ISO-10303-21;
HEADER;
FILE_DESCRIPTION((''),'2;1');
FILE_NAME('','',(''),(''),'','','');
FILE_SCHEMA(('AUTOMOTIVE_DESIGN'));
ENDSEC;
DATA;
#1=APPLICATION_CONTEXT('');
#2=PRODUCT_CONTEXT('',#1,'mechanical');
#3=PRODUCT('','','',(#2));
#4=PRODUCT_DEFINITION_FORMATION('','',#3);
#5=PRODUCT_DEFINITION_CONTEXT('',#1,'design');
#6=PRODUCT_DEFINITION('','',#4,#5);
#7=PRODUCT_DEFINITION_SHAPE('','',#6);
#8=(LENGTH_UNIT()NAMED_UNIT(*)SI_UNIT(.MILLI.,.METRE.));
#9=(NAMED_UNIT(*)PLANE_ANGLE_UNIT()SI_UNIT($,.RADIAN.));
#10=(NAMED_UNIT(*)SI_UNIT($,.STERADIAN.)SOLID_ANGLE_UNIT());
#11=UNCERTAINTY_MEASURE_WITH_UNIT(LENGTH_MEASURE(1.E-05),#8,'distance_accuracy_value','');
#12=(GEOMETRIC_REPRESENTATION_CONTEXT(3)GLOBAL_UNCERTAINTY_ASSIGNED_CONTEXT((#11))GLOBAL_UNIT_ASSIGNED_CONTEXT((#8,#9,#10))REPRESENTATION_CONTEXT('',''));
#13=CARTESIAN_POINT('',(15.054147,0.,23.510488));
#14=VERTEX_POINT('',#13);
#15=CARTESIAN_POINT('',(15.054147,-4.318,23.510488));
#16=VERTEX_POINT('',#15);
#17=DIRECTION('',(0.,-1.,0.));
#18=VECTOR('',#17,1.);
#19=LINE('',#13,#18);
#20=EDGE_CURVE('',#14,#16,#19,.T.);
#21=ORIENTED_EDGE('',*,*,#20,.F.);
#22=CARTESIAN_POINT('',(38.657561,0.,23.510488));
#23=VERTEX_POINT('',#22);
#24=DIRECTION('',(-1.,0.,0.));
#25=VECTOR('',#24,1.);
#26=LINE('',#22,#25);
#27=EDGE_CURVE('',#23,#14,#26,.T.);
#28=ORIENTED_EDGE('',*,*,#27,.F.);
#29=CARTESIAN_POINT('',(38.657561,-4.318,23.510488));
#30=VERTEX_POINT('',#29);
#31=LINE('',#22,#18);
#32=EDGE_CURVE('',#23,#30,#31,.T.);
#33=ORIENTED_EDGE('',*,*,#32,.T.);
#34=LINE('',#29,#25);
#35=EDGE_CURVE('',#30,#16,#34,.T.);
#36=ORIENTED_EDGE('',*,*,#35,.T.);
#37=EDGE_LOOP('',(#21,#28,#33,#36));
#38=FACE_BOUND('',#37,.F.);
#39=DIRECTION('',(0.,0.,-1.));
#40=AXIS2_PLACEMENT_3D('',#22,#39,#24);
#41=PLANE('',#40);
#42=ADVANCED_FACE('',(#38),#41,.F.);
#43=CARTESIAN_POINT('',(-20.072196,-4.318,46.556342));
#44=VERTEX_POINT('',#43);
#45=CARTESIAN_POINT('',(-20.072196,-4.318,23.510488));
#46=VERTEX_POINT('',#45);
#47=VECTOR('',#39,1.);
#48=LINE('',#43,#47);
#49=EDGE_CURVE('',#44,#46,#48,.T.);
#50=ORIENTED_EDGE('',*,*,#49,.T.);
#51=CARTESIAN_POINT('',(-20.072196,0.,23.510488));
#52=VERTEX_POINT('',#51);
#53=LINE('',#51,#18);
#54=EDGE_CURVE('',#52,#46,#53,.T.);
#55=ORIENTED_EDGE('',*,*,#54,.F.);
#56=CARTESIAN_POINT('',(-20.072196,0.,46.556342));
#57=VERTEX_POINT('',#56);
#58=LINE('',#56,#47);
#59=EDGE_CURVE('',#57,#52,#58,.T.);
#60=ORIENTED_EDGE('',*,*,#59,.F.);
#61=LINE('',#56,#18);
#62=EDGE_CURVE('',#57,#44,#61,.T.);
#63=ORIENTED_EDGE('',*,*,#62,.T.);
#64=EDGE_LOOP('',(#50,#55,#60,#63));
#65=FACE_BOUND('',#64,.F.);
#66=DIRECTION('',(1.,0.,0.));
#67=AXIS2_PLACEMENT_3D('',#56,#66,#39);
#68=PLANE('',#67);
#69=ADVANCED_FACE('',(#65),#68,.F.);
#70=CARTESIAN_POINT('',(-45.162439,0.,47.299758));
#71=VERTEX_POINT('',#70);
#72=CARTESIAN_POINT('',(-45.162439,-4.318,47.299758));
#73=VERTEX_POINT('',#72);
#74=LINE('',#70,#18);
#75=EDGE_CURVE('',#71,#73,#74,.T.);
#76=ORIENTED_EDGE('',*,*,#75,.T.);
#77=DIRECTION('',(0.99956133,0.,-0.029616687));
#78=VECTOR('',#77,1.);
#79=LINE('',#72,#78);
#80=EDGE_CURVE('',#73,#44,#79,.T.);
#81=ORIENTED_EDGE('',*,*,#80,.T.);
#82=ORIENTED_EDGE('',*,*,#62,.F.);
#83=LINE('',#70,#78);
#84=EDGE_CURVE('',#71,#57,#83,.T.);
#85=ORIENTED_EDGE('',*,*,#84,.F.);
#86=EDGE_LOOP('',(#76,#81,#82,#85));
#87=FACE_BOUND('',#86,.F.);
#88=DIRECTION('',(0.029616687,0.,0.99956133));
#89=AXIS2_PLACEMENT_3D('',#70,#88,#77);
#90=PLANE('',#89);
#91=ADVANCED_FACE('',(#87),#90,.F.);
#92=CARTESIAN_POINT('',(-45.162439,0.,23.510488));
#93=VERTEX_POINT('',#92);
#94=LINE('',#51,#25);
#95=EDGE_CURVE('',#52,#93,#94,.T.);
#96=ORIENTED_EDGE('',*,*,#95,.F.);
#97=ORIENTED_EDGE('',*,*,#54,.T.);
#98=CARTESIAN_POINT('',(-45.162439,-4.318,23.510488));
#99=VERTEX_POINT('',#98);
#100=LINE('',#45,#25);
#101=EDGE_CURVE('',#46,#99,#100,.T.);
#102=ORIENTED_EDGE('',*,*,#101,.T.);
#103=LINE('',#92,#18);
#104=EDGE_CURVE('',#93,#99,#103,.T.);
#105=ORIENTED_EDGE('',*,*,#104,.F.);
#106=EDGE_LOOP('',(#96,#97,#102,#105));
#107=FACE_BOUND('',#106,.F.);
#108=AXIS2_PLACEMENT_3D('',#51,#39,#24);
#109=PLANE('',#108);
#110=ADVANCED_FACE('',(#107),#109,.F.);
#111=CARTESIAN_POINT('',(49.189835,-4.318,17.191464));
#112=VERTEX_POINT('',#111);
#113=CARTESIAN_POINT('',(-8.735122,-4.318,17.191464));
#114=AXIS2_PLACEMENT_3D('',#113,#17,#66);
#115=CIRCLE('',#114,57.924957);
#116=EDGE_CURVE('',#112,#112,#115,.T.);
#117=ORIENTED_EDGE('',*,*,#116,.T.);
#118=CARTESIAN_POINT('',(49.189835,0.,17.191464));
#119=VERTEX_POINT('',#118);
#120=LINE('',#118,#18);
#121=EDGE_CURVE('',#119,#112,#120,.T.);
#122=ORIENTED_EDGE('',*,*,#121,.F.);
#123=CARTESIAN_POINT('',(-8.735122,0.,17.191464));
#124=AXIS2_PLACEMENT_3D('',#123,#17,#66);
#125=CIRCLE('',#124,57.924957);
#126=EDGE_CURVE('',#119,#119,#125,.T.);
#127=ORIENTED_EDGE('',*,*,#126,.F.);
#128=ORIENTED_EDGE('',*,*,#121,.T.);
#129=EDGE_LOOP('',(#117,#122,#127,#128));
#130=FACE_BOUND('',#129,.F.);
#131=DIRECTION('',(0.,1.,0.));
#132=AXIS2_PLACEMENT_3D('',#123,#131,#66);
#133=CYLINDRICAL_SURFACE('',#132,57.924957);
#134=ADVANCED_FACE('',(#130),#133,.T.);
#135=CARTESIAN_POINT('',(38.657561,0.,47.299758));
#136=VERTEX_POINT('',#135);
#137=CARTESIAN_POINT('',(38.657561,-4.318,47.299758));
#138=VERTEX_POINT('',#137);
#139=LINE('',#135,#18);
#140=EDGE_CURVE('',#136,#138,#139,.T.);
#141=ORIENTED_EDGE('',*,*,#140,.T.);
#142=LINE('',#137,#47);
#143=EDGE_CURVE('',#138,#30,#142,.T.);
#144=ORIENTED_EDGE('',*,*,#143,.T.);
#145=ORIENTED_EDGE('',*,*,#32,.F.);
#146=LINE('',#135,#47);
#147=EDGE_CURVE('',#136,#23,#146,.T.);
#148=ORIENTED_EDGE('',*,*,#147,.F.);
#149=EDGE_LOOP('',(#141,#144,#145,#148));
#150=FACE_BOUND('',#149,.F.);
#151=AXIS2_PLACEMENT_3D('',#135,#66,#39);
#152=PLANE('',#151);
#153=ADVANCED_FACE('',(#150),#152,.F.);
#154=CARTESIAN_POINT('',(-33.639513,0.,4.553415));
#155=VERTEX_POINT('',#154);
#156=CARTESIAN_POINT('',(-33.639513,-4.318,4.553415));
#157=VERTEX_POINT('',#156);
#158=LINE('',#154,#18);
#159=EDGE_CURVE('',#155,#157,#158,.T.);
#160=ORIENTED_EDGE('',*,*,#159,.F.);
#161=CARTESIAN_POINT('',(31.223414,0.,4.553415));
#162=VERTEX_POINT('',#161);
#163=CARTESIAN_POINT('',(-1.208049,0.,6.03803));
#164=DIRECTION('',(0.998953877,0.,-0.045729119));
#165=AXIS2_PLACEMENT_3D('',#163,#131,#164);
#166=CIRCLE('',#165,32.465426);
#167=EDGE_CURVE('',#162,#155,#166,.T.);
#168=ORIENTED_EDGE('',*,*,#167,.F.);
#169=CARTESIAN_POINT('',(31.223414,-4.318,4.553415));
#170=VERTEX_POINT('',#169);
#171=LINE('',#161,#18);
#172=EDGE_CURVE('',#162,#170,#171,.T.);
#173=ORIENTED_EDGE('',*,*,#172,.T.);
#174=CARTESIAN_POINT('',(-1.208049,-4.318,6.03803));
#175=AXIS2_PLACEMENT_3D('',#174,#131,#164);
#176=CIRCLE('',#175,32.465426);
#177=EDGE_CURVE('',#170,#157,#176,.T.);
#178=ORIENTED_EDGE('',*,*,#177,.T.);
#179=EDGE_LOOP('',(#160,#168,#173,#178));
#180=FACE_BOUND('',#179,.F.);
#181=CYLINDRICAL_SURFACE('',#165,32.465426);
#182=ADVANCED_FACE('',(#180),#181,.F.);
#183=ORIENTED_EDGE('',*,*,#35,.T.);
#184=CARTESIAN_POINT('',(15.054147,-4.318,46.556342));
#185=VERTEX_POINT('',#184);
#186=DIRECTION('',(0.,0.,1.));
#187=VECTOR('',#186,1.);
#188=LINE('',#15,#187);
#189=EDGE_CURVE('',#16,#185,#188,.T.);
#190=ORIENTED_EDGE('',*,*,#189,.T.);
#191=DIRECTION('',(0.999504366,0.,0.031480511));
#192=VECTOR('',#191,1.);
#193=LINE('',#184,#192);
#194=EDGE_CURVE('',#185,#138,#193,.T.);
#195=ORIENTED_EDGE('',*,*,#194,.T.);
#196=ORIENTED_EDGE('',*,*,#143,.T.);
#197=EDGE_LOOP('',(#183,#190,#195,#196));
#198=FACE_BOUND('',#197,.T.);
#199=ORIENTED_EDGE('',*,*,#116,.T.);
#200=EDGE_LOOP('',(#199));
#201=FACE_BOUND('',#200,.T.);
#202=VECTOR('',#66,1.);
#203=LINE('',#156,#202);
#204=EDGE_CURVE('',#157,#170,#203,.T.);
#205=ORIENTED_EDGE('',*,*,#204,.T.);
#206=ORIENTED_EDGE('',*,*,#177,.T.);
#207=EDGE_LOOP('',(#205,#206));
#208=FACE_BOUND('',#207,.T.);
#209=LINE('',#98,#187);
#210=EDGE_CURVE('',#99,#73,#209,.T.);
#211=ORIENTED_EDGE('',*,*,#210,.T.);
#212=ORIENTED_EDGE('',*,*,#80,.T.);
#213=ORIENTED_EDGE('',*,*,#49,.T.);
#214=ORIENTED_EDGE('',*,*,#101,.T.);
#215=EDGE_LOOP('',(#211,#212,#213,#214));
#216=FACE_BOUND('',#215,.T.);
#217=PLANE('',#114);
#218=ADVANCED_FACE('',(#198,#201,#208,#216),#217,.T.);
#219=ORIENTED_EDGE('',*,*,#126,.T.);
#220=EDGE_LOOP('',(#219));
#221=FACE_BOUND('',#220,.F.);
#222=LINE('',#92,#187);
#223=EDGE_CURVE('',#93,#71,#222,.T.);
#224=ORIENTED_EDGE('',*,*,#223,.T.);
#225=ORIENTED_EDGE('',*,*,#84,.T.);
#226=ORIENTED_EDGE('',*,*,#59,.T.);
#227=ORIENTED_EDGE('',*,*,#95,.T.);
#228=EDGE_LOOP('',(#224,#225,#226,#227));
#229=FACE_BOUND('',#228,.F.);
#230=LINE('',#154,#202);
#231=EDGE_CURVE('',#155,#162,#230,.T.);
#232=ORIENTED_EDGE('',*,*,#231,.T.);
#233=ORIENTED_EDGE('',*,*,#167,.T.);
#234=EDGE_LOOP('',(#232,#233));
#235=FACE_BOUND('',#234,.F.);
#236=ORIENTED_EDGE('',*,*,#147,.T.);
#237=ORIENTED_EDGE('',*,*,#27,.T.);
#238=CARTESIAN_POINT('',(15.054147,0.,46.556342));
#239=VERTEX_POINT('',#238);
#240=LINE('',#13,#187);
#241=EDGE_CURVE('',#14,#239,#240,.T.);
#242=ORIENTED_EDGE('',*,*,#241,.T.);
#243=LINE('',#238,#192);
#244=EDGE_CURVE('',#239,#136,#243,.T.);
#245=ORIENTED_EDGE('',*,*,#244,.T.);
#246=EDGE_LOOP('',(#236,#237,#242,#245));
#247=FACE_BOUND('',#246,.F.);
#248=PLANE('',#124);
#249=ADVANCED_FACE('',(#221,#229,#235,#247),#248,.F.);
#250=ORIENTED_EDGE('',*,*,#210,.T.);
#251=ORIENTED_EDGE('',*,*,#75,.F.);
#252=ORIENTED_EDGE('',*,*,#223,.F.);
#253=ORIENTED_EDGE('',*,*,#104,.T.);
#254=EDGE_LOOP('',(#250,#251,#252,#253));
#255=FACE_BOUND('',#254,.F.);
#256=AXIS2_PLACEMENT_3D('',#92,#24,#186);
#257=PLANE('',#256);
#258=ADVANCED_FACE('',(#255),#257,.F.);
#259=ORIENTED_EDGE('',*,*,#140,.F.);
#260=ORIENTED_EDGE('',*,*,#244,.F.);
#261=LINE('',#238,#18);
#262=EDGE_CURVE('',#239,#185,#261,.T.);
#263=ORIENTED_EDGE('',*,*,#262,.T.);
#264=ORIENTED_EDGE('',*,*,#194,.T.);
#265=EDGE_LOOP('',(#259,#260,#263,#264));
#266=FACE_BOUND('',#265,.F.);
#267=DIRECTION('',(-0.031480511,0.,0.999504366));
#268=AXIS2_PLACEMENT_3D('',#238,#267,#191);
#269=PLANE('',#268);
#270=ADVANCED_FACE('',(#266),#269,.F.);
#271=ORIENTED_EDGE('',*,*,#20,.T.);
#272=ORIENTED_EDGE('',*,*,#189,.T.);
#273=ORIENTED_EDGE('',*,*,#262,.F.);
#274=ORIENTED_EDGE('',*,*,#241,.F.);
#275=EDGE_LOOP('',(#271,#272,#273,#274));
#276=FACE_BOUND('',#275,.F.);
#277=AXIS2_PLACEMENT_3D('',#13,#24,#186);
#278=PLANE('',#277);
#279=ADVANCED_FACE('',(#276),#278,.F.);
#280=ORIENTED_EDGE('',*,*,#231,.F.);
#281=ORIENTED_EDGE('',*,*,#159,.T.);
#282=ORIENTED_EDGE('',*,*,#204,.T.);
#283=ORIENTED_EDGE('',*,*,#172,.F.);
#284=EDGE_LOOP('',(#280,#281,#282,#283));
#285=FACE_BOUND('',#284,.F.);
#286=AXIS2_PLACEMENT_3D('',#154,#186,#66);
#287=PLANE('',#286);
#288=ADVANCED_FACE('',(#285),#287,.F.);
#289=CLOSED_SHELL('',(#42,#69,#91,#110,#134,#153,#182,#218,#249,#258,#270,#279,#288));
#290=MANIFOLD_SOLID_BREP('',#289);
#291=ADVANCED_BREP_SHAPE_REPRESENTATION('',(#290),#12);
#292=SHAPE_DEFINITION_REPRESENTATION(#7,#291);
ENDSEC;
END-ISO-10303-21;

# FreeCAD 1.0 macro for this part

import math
import FreeCAD as App
import Part
import Sketcher
Q = App.Units.Quantity

doc = App.newDocument("Part")
body = doc.addObject("PartDesign::Body", "Body")

sketch1 = body.newObject("Sketcher::SketchObject", "Sketch")
sketch1.AttachmentSupport = (doc.getObject("XZ_Plane"), [""])
sketch1.MapMode = "FlatFace"
sketch1.addGeometry(Part.Circle(App.Vector(-9, 17, 0), App.Vector(0, 0, 1), 58), False)
sketch1.addGeometry(Part.LineSegment(App.Vector(-34, 5, 0), App.Vector(31, 5, 0)), False)
sketch1.addGeometry(Part.ArcOfCircle(Part.Circle(App.Vector(-1, 6, 0), App.Vector(0, 0, 1), 32), math.radians(-177), math.radians(-3)), False)
sketch1.addGeometry(Part.LineSegment(App.Vector(-20, 24, 0), App.Vector(-45, 24, 0)), False)
sketch1.addGeometry(Part.LineSegment(App.Vector(-45, 24, 0), App.Vector(-45, 47, 0)), False)
sketch1.addGeometry(Part.LineSegment(App.Vector(-45, 47, 0), App.Vector(-20, 47, 0)), False)
sketch1.addGeometry(Part.LineSegment(App.Vector(-20, 47, 0), App.Vector(-20, 24, 0)), False)
sketch1.addGeometry(Part.LineSegment(App.Vector(39, 24, 0), App.Vector(15, 24, 0)), False)
sketch1.addGeometry(Part.LineSegment(App.Vector(15, 24, 0), App.Vector(15, 47, 0)), False)
sketch1.addGeometry(Part.LineSegment(App.Vector(15, 47, 0), App.Vector(39, 47, 0)), False)
sketch1.addGeometry(Part.LineSegment(App.Vector(39, 47, 0), App.Vector(39, 24, 0)), False)
sketch1.addConstraint(Sketcher.Constraint("Coincident", 1, 1, 2, 1))
sketch1.addConstraint(Sketcher.Constraint("Coincident", 2, 2, 1, 2))
sketch1.addConstraint(Sketcher.Constraint("Coincident", 3, 2, 4, 1))
sketch1.addConstraint(Sketcher.Constraint("Coincident", 4, 2, 5, 1))
sketch1.addConstraint(Sketcher.Constraint("Coincident", 5, 2, 6, 1))
sketch1.addConstraint(Sketcher.Constraint("Coincident", 6, 2, 3, 1))
sketch1.addConstraint(Sketcher.Constraint("Coincident", 7, 2, 8, 1))
sketch1.addConstraint(Sketcher.Constraint("Coincident", 8, 2, 9, 1))
sketch1.addConstraint(Sketcher.Constraint("Coincident", 9, 2, 10, 1))
sketch1.addConstraint(Sketcher.Constraint("Coincident", 10, 2, 7, 1))
sketch1.addConstraint(Sketcher.Constraint("Horizontal", 1))
sketch1.addConstraint(Sketcher.Constraint("Horizontal", 3))
sketch1.addConstraint(Sketcher.Constraint("Vertical", 4))
sketch1.addConstraint(Sketcher.Constraint("Vertical", 6))
sketch1.addConstraint(Sketcher.Constraint("Horizontal", 7))
sketch1.addConstraint(Sketcher.Constraint("Vertical", 8))
sketch1.addConstraint(Sketcher.Constraint("Vertical", 10))
sketch1.addConstraint(Sketcher.Constraint("Horizontal", 6, 2, 7, 2))
sketch1.addConstraint(Sketcher.Constraint("Horizontal", 5, 2, 8, 2))
sketch1.addConstraint(Sketcher.Constraint("Horizontal", 4, 2, 9, 2))
sketch1.addConstraint(Sketcher.Constraint("Diameter", 0, 115.849914))
sketch1.addConstraint(Sketcher.Constraint("Radius", 2, 32.465426))
sketch1.addConstraint(Sketcher.Constraint("DistanceY", 4, 1, 4, 2, 23.78927))
sketch1.addConstraint(Sketcher.Constraint("Distance", 9, 23.615118))
sketch1.addConstraint(Sketcher.Constraint("DistanceX", 1, 1, 1, 2, 64.862927))
sketch1.addConstraint(Sketcher.Constraint("DistanceX", 3, 2, 3, 1, 25.090243))
sketch1.addConstraint(Sketcher.Constraint("DistanceX", 7, 2, 7, 1, 23.603414))
sketch1.addConstraint(Sketcher.Constraint("DistanceX", 2, 3, -1, 1, 1.208049))
sketch1.addConstraint(Sketcher.Constraint("DistanceY", -1, 1, 2, 3, 6.03803))
sketch1.addConstraint(Sketcher.Constraint("DistanceX", 3, 2, -1, 1, 45.162439))
sketch1.addConstraint(Sketcher.Constraint("DistanceX", -1, 1, 9, 2, 38.657561))
sketch1.addConstraint(Sketcher.Constraint("DistanceX", 1, 1, 0, 3, 24.904391))
sketch1.addConstraint(Sketcher.Constraint("DistanceY", 1, 1, 0, 3, 12.638049))
sketch1.addConstraint(Sketcher.Constraint("DistanceY", 0, 3, 5, 2, 29.364878))
pad1 = body.newObject("PartDesign::Pad", "Pad")
pad1.Profile = sketch1
pad1.Length = Q("0.17 in")

doc.recompute()
